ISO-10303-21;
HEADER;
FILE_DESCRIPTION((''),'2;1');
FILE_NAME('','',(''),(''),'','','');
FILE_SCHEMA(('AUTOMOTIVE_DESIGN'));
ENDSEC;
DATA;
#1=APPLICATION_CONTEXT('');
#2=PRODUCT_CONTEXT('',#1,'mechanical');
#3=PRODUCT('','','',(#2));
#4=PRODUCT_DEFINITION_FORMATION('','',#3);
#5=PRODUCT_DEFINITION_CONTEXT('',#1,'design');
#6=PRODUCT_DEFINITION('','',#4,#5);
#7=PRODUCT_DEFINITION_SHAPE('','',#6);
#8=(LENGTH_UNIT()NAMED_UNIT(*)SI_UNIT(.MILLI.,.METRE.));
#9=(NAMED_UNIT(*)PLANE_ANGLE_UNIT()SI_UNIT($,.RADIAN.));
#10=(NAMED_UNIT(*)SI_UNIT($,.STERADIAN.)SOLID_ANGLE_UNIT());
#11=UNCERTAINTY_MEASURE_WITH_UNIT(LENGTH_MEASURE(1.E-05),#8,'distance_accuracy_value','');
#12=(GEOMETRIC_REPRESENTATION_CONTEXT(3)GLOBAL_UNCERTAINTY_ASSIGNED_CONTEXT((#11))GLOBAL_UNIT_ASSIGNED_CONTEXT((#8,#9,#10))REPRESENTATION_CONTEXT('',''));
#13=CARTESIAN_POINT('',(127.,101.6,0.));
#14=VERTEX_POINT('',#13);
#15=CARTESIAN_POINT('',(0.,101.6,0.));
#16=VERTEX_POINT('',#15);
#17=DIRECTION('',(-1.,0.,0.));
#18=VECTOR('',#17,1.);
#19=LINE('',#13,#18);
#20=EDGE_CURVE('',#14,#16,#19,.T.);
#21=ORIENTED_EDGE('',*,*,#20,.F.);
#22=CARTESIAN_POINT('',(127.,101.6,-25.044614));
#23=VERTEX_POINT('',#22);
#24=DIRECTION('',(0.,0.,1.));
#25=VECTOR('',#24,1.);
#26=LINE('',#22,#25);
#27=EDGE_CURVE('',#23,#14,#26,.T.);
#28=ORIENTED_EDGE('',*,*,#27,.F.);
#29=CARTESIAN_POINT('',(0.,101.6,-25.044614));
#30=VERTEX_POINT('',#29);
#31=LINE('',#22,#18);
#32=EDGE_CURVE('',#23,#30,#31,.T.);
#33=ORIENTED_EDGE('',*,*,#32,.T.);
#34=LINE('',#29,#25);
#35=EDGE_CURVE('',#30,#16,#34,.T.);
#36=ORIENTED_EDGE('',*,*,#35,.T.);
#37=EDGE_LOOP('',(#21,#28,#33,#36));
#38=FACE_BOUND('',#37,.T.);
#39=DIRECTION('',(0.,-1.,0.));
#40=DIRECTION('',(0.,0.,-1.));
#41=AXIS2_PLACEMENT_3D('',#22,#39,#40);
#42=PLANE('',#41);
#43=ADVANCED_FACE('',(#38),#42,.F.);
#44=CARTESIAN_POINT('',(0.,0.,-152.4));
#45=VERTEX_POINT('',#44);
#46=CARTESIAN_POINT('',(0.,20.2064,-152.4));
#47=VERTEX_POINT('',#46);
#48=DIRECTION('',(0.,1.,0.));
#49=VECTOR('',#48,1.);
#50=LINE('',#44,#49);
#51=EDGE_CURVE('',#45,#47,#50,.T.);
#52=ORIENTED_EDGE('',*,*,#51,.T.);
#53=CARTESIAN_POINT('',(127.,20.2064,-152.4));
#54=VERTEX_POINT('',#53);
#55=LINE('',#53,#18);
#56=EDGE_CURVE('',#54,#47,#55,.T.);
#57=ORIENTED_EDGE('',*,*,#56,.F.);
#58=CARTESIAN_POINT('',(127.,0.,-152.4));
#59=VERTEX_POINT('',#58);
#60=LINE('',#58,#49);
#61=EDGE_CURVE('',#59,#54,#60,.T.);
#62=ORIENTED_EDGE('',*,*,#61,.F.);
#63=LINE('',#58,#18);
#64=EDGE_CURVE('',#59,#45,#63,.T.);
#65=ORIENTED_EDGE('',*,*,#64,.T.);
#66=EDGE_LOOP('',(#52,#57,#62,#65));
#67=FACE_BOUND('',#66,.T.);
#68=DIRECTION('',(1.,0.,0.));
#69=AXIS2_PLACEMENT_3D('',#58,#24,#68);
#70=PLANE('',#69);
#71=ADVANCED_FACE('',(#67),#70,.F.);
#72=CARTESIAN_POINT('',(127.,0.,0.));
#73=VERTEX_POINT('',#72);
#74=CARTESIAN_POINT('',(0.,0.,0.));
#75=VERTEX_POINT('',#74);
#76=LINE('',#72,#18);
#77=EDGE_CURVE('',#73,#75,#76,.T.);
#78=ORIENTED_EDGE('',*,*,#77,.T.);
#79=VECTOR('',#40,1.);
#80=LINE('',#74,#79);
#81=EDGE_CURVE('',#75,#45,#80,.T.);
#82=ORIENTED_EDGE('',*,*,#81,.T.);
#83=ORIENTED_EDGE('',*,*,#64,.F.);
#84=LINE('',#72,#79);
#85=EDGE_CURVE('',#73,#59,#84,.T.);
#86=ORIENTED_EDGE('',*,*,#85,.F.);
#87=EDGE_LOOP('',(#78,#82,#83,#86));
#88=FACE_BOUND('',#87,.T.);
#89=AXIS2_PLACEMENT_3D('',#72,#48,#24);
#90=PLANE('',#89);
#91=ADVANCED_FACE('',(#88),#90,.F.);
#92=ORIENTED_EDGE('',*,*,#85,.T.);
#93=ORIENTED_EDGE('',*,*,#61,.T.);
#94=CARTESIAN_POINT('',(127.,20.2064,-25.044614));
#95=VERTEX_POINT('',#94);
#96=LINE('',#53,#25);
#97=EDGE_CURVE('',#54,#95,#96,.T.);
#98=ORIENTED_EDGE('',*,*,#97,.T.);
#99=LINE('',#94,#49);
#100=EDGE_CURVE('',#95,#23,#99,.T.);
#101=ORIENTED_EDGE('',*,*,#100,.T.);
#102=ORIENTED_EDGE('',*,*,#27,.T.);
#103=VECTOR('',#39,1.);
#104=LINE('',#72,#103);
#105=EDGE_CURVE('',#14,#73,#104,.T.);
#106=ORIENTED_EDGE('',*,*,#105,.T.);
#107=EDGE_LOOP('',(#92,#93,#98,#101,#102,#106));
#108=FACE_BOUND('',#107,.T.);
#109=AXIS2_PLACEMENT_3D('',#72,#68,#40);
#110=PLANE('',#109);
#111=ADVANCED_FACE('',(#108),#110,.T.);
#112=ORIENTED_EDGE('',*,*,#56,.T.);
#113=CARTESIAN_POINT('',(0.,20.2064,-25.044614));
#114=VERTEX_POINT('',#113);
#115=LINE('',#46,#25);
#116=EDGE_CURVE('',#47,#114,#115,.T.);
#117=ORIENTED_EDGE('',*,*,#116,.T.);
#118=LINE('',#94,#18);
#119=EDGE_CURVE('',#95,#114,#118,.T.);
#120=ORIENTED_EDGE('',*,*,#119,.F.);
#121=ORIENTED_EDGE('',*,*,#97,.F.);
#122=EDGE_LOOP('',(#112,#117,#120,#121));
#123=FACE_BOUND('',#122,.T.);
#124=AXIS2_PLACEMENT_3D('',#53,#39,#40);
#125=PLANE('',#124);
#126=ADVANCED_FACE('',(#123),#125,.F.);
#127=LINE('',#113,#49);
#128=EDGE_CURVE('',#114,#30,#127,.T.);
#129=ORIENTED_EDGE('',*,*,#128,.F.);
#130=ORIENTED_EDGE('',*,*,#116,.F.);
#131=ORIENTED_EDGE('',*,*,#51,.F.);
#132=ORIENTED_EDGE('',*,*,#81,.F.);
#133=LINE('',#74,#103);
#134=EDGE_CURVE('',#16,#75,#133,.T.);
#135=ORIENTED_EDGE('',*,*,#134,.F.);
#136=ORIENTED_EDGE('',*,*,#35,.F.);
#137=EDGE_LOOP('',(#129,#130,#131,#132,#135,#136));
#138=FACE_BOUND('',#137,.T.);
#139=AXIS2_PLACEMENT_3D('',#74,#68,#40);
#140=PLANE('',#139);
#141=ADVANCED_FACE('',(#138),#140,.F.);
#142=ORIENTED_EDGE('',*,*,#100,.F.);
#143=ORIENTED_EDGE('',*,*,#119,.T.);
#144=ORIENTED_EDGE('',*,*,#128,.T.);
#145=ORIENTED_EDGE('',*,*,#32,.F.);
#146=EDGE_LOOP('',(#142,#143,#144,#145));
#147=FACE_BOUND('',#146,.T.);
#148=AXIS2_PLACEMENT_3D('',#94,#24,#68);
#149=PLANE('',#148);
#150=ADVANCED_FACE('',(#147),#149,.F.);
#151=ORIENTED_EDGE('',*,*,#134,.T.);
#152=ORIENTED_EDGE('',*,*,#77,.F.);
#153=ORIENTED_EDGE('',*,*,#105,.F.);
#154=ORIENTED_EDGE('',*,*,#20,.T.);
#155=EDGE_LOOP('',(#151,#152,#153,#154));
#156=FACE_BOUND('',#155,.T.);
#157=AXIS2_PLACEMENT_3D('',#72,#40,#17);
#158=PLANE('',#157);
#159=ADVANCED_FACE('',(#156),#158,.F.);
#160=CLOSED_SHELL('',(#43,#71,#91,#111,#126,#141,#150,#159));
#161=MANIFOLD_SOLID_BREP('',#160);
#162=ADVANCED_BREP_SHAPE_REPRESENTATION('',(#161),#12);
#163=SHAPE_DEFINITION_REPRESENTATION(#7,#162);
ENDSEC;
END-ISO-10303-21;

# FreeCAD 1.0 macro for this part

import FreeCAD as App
import Part
import Sketcher

V = App.Vector
Q = App.Units.Quantity


def add_polygon(sketch, points):
    """Adds a closed chain of lines whose ends are joined by coincident constraints."""
    first, n = sketch.GeometryCount, len(points)
    for a, b in zip(points, points[1:] + points[:1]):
        sketch.addGeometry(Part.LineSegment(App.Vector(*a, 0), App.Vector(*b, 0)), False)
    for i in range(n):
        sketch.addConstraint(Sketcher.Constraint("Coincident", first + i, 2, first + (i + 1) % n, 1))

doc = App.newDocument("Part")
params = doc.addObject("Spreadsheet::Sheet", "Params")
for row, (alias, value) in enumerate([
    ("sketch1_width", "4 in"),
    ("sketch1_height", "6 in"),
    ("pad1_length", "5 in"),
], start=1):
    params.set(f"A{row}", alias)
    params.set(f"B{row}", "=" + value)
    params.setAlias(f"B{row}", alias)

body = doc.addObject("PartDesign::Body", "Body")

sketch1 = doc.addObject("Sketcher::SketchObject", "Sketch")
body.addObject(sketch1)
sketch1.AttachmentSupport = (doc.YZ_Plane, [""])
sketch1.MapMode = "FlatFace"
add_polygon(sketch1, [(102, 0), (0, 0), (0, -152), (20, -152), (20, -25), (102, -25)])
sketch1.addConstraint(Sketcher.Constraint("Horizontal", 0))
sketch1.addConstraint(Sketcher.Constraint("Vertical", 1))
sketch1.addConstraint(Sketcher.Constraint("Horizontal", 2))
sketch1.addConstraint(Sketcher.Constraint("Vertical", 3))
sketch1.addConstraint(Sketcher.Constraint("Horizontal", 4))
sketch1.addConstraint(Sketcher.Constraint("Vertical", 5))
sketch1.addConstraint(Sketcher.Constraint("Coincident", 0, 2, -1, 1))
sketch1.addConstraint(Sketcher.Constraint("DistanceX", 0, 2, 0, 1, Q("4 in")))
sketch1.addConstraint(Sketcher.Constraint("DistanceY", 1, 2, 1, 1, Q("6 in")))
sketch1.addConstraint(Sketcher.Constraint("DistanceX", 2, 1, 2, 2, Q("20.2064 mm")))
sketch1.addConstraint(Sketcher.Constraint("DistanceY", 3, 1, 3, 2, Q("127.355386 mm")))
sketch1.setExpression("Constraints[13]", "Params.sketch1_width")
sketch1.setExpression("Constraints[14]", "Params.sketch1_height")
pad1 = doc.addObject("PartDesign::Pad", "Pad")
body.addObject(pad1)
pad1.Profile = sketch1
pad1.setExpression("Length", "Params.pad1_length")

doc.recompute()
